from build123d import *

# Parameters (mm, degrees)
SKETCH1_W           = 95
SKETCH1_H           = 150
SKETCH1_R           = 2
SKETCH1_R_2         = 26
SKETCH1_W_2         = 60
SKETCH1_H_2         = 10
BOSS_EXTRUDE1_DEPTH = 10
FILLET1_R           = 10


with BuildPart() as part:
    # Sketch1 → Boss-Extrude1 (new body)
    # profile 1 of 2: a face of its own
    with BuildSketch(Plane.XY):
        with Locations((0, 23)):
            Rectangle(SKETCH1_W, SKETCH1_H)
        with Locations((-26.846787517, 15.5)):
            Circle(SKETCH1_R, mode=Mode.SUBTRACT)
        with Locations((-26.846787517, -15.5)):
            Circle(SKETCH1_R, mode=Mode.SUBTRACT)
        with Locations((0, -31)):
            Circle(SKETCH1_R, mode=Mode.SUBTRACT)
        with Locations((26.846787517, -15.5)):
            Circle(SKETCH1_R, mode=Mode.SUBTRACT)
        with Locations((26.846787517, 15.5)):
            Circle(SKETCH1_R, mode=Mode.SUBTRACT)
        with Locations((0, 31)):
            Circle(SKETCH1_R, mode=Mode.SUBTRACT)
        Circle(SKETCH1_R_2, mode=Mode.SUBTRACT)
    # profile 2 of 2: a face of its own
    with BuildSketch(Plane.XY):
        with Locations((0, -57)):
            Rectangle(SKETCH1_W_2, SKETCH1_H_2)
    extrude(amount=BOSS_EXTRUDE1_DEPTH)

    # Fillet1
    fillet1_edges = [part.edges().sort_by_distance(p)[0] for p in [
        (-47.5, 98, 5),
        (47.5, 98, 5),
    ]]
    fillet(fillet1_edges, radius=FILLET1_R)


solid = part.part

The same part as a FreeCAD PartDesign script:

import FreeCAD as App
import Part
import Sketcher
from FreeCAD import Vector
Q = App.Units.Quantity


def edges_at(feature, points):
    """Names of the edges that pass closest to the given points."""
    edges = feature.Shape.Edges
    near = lambda p: min(range(len(edges)), key=lambda i: edges[i].distToShape(Part.Vertex(*p))[0])
    return sorted({f"Edge{near(p) + 1}" for p in points})


def add_polygon(sketch, points):
    """Adds a closed chain of lines whose ends are joined by coincident constraints."""
    first, n = sketch.GeometryCount, len(points)
    for a, b in zip(points, points[1:] + points[:1]):
        sketch.addGeometry(Part.LineSegment(App.Vector(*a, 0), App.Vector(*b, 0)), False)
    for i in range(n):
        sketch.addConstraint(Sketcher.Constraint("Coincident", first + i, 2, first + (i + 1) % n, 1))

doc = App.newDocument("Part")
params = doc.addObject("Spreadsheet::Sheet", "Params")
for row, (alias, value) in enumerate([
    ("sketch1_diameter", "4 mm"),
    ("sketch1_diameter2", "52 mm"),
    ("sketch1_width", "60 mm"),
    ("sketch1_width2", "95 mm"),
    ("sketch1_height", "150 mm"),
    ("pad1_length", "10 mm"),
    ("fillet_radius", "10 mm"),
], start=1):
    params.set(f"A{row}", alias)
    params.set(f"B{row}", "=" + value)
    params.setAlias(f"B{row}", alias)

body = doc.addObject("PartDesign::Body", "Body")

# Sketch on XY plane
sketch1 = body.newObject("Sketcher::SketchObject", "Sketch")
sketch1.AttachmentSupport = (doc.getObject("XY_Plane"), [""])
sketch1.MapMode = "FlatFace"
add_polygon(sketch1, [(-47.5, 98), (-47.5, -52), (-30, -52), (-30, -62), (30, -62), (30, -52), (47.5, -52), (47.5, 98)])  # lines 0-7
sketch1.addGeometry(Part.Circle(Vector(-26.8, -15.5, 0), Vector(0, 0, 1), 2), False)  # 8
sketch1.addGeometry(Part.Circle(Vector(0, -31, 0), Vector(0, 0, 1), 2), False)  # 9
sketch1.addGeometry(Part.Circle(Vector(26.8, -15.5, 0), Vector(0, 0, 1), 2), False)  # 10
sketch1.addGeometry(Part.Circle(Vector(-26.8, 15.5, 0), Vector(0, 0, 1), 2), False)  # 11
sketch1.addGeometry(Part.Circle(Vector(0, 0, 0), Vector(0, 0, 1), 26), False)  # 12
sketch1.addGeometry(Part.Circle(Vector(26.8, 15.5, 0), Vector(0, 0, 1), 2), False)  # 13
sketch1.addGeometry(Part.Circle(Vector(0, 31, 0), Vector(0, 0, 1), 2), False)  # 14
sketch1.addConstraint(Sketcher.Constraint("Vertical", 0))
sketch1.addConstraint(Sketcher.Constraint("Horizontal", 1))
sketch1.addConstraint(Sketcher.Constraint("Vertical", 2))
sketch1.addConstraint(Sketcher.Constraint("Horizontal", 3))
sketch1.addConstraint(Sketcher.Constraint("Vertical", 4))
sketch1.addConstraint(Sketcher.Constraint("Horizontal", 5))
sketch1.addConstraint(Sketcher.Constraint("Vertical", 6))
sketch1.addConstraint(Sketcher.Constraint("Horizontal", 7))
sketch1.addConstraint(Sketcher.Constraint("Coincident", 12, 3, -1, 1))
sketch1.addConstraint(Sketcher.Constraint("Equal", 8, 9))
sketch1.addConstraint(Sketcher.Constraint("Equal", 9, 10))
sketch1.addConstraint(Sketcher.Constraint("Equal", 10, 11))
sketch1.addConstraint(Sketcher.Constraint("Equal", 11, 13))
sketch1.addConstraint(Sketcher.Constraint("Equal", 13, 14))
sketch1.addConstraint(Sketcher.Constraint("Symmetric", 10, 3, 11, 3, -1, 1))
sketch1.addConstraint(Sketcher.Constraint("Symmetric", 8, 3, 13, 3, -1, 1))
sketch1.addConstraint(Sketcher.Constraint("Symmetric", 9, 3, 14, 3, -1, 1))
sketch1.addConstraint(Sketcher.Constraint("Symmetric", 8, 3, 10, 3, -2))
sketch1.addConstraint(Sketcher.Constraint("Symmetric", 1, 2, 4, 2, -2))
sketch1.addConstraint(Sketcher.Constraint("PointOnObject", 9, 3, -2))
sketch1.addConstraint(Sketcher.Constraint("Equal", 1, 5))
sketch1.addConstraint(Sketcher.Constraint("Diameter", 8, Q("4 mm")))
sketch1.addConstraint(Sketcher.Constraint("Diameter", 12, Q("52 mm")))
sketch1.addConstraint(Sketcher.Constraint("DistanceX", 3, 1, 3, 2, Q("60 mm")))
sketch1.addConstraint(Sketcher.Constraint("DistanceX", 7, 2, 7, 1, Q("95 mm")))
sketch1.addConstraint(Sketcher.Constraint("DistanceY", 0, 2, 0, 1, Q("150 mm")))
sketch1.addConstraint(Sketcher.Constraint("DistanceY", 2, 2, 2, 1, Q("10 mm")))
sketch1.addConstraint(Sketcher.Constraint("DistanceY", 9, 3, -1, 1, Q("31 mm")))
sketch1.addConstraint(Sketcher.Constraint("DistanceY", 0, 2, -1, 1, Q("52 mm")))
sketch1.addConstraint(Sketcher.Constraint("DistanceY", 8, 3, 11, 3, Q("31 mm")))
sketch1.addConstraint(Sketcher.Constraint("DistanceX", 8, 3, -1, 1, Q("26.846788 mm")))
sketch1.setExpression("Constraints[29]", "Params.sketch1_diameter")
sketch1.setExpression("Constraints[30]", "Params.sketch1_diameter2")
sketch1.setExpression("Constraints[31]", "Params.sketch1_width")
sketch1.setExpression("Constraints[32]", "Params.sketch1_width2")
sketch1.setExpression("Constraints[33]", "Params.sketch1_height")
pad1 = body.newObject("PartDesign::Pad", "Pad")
pad1.Profile = sketch1
pad1.setExpression("Length", "Params.pad1_length")
doc.recompute()

fillet = body.newObject("PartDesign::Fillet", "Fillet")
fillet.Base = (pad1, edges_at(pad1, [(-47.5, 98, 5), (47.5, 98, 5)]))
fillet.setExpression("Radius", "Params.fillet_radius")

doc.recompute()
